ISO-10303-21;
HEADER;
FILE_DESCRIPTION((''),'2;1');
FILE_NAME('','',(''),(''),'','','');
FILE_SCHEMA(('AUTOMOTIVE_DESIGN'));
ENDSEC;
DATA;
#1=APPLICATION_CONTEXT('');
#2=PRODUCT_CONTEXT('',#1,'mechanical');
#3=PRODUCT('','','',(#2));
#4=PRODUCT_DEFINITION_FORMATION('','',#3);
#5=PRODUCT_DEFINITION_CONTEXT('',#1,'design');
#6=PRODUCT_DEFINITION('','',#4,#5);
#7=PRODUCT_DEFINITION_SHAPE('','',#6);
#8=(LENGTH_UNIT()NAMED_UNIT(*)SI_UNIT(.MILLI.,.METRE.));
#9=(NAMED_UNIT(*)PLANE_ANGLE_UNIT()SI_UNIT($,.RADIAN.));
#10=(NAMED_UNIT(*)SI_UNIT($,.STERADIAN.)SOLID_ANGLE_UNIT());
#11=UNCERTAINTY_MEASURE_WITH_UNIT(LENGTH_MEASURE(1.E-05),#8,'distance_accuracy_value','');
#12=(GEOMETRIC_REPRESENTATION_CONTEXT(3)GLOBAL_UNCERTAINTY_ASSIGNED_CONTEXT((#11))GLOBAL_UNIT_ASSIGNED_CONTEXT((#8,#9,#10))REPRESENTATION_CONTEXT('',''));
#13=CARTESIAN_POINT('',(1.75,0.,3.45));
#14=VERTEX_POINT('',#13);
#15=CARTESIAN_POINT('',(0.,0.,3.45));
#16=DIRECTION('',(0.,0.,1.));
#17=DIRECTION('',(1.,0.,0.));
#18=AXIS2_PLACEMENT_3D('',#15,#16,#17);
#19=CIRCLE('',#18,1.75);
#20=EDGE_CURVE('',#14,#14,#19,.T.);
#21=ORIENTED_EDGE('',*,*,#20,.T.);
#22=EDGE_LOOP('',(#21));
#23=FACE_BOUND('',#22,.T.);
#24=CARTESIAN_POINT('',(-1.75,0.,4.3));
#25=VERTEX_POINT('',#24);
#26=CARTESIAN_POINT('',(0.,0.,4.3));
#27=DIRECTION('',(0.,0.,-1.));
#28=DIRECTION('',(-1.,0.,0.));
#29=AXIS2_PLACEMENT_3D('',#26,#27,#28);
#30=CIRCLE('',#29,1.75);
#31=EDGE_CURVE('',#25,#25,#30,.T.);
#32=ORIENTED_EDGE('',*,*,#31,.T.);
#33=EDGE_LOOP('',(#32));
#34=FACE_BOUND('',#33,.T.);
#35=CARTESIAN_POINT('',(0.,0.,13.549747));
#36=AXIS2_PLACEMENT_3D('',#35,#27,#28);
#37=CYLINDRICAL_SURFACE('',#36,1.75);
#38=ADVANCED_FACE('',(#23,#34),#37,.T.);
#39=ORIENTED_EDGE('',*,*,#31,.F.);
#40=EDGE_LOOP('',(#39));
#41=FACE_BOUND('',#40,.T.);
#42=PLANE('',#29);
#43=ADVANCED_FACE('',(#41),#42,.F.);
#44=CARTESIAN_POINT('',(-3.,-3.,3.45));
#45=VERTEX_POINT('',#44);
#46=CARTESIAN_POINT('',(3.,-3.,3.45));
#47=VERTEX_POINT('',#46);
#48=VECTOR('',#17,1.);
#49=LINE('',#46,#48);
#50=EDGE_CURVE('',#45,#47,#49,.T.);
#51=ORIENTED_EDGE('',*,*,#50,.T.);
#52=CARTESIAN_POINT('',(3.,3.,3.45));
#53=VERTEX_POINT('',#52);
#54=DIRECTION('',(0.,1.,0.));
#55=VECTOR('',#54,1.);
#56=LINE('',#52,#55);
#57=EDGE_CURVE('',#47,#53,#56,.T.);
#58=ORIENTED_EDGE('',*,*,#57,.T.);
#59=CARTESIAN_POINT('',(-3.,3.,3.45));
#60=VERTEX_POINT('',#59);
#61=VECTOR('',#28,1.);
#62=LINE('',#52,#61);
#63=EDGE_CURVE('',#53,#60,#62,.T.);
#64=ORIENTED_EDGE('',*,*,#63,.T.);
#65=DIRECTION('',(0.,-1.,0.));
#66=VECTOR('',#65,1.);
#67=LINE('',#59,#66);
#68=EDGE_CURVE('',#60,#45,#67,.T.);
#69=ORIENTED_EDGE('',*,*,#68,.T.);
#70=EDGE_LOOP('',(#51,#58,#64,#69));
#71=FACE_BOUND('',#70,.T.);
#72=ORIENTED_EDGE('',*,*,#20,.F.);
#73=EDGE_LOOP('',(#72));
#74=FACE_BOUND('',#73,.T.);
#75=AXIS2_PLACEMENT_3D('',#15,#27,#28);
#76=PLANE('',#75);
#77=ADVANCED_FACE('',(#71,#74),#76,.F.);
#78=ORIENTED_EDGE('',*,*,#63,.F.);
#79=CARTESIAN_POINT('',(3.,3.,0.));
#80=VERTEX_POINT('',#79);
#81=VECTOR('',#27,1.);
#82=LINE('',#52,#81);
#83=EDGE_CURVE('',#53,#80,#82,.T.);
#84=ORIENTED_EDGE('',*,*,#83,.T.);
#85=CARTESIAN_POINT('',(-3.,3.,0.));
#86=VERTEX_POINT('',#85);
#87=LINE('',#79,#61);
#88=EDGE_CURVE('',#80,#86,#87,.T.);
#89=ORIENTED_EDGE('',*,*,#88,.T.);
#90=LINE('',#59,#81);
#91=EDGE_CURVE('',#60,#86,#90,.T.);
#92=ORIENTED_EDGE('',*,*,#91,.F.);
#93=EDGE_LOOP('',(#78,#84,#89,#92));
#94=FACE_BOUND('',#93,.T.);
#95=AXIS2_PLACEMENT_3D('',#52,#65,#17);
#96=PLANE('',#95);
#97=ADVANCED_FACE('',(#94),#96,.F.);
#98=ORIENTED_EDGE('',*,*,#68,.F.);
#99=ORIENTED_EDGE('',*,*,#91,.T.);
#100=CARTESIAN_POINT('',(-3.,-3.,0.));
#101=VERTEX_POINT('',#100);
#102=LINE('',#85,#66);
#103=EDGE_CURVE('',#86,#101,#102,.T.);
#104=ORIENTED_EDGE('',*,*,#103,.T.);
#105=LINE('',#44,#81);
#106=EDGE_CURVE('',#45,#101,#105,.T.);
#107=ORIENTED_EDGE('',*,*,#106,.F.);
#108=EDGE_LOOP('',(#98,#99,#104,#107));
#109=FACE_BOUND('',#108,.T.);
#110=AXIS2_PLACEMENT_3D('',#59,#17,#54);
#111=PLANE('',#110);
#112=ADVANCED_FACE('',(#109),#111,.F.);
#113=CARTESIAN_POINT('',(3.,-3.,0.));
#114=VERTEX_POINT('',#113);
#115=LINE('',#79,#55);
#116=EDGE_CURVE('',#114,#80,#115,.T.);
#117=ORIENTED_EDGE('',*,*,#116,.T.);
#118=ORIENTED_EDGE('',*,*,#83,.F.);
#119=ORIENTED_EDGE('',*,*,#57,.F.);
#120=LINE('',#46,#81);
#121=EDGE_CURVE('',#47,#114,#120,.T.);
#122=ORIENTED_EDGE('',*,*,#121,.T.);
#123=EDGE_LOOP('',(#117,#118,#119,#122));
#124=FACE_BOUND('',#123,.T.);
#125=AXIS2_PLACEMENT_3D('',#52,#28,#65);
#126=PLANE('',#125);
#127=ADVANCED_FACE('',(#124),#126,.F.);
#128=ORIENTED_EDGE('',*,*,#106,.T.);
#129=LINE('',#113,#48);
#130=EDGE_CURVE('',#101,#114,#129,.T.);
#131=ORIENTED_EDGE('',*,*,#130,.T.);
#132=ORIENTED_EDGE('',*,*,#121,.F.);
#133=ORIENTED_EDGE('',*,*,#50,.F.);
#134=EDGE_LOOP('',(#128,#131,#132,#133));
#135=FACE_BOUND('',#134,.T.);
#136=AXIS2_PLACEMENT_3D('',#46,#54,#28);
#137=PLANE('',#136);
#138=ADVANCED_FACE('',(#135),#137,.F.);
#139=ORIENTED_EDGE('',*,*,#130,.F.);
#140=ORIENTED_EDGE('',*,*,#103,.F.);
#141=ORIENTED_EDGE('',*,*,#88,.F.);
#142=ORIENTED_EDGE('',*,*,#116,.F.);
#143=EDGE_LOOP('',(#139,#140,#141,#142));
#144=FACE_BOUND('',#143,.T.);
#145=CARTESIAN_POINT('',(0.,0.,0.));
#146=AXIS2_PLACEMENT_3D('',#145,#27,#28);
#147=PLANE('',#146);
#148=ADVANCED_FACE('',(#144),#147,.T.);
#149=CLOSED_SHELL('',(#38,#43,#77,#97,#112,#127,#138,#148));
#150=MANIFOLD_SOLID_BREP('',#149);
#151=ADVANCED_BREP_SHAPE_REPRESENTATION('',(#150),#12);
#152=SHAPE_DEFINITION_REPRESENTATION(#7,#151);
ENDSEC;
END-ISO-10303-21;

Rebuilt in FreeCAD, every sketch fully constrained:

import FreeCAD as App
import Part
import Sketcher
from FreeCAD import Vector


def add_polygon(sketch, points):
    """Adds a closed chain of lines whose ends are joined by coincident constraints."""
    first, n = sketch.GeometryCount, len(points)
    for a, b in zip(points, points[1:] + points[:1]):
        sketch.addGeometry(Part.LineSegment(App.Vector(*a, 0), App.Vector(*b, 0)), False)
    for i in range(n):
        sketch.addConstraint(Sketcher.Constraint("Coincident", first + i, 2, first + (i + 1) % n, 1))

doc = App.newDocument("Part")
body = doc.addObject("PartDesign::Body", "Body")

sketch1 = body.newObject("Sketcher::SketchObject", "Sketch")
sketch1.AttachmentSupport = (doc.getObject("XY_Plane"), [""])
sketch1.MapMode = "FlatFace"
add_polygon(sketch1, [(-3, 3), (-3, -3), (3, -3), (3, 3)])
sketch1.addConstraint(Sketcher.Constraint("Vertical", 0))
sketch1.addConstraint(Sketcher.Constraint("Horizontal", 1))
sketch1.addConstraint(Sketcher.Constraint("Vertical", 2))
sketch1.addConstraint(Sketcher.Constraint("Horizontal", 3))
sketch1.addConstraint(Sketcher.Constraint("Symmetric", 0, 2, 2, 2, -1, 1))
sketch1.addConstraint(Sketcher.Constraint("Equal", 3, 0))
sketch1.addConstraint(Sketcher.Constraint("DistanceX", 1, 1, 1, 2, 6.0))
pad1 = body.newObject("PartDesign::Pad", "Pad")
pad1.Profile = sketch1
pad1.Length = 3.45

sketch2 = body.newObject("Sketcher::SketchObject", "Sketch001")
sketch2.AttachmentSupport = (doc.getObject("XY_Plane"), [""])
sketch2.MapMode = "FlatFace"
sketch2.AttachmentOffset = App.Placement(Vector(0, 0, 3.45), App.Rotation())
sketch2.addGeometry(Part.Circle(Vector(0, 0, 0), Vector(0, 0, 1), 1.8), False)
sketch2.addConstraint(Sketcher.Constraint("Coincident", 0, 3, -1, 1))
sketch2.addConstraint(Sketcher.Constraint("Diameter", 0, 3.5))
pad2 = body.newObject("PartDesign::Pad", "Pad001")
pad2.Profile = sketch2
pad2.Length = 0.85

doc.recompute()
